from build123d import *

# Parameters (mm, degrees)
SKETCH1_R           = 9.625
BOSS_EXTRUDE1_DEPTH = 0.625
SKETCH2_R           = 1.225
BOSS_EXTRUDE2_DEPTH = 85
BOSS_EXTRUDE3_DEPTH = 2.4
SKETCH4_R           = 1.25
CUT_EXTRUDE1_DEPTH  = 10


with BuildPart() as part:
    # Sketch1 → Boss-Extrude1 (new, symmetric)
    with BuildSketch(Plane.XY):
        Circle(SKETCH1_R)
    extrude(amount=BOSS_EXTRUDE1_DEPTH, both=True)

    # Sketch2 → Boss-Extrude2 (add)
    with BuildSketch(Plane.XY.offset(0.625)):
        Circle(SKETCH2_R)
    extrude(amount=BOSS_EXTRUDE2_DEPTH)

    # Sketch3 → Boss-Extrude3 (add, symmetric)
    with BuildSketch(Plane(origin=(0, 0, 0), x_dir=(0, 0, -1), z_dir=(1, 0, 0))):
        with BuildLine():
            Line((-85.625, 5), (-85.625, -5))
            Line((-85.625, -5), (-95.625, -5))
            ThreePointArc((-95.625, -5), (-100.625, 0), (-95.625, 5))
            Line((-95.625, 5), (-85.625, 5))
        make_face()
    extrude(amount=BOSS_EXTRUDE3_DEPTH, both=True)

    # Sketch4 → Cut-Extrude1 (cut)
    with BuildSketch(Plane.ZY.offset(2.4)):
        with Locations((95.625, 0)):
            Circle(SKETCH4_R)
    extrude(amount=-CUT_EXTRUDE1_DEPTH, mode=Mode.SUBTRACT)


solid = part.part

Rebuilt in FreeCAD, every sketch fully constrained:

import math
import FreeCAD as App
import Part
import Sketcher
from FreeCAD import Vector

doc = App.newDocument("Part")
params = doc.addObject("Spreadsheet::Sheet", "Params")
for row, (alias, value) in enumerate([
    ("sketch1_diameter", "19.25 mm"),
    ("pad1_length", "1.25 mm"),
    ("sketch2_diameter", "2.45 mm"),
    ("pad2_length", "85 mm"),
    ("sketch3_radius", "5 mm"),
    ("pad3_length", "4.8 mm"),
    ("sketch4_diameter", "2.5 mm"),
    ("pocket1_length", "10 mm"),
], start=1):
    params.set(f"A{row}", alias)
    params.set(f"B{row}", "=" + value)
    params.setAlias(f"B{row}", alias)

body = doc.addObject("PartDesign::Body", "Body")

# Sketch on XY plane
sketch1 = doc.addObject("Sketcher::SketchObject", "Sketch")
body.addObject(sketch1)
sketch1.AttachmentSupport = (doc.XY_Plane, [""])
sketch1.MapMode = "FlatFace"
sketch1.addGeometry(Part.Circle(Vector(0, 0, 0), Vector(0, 0, 1), 10), False)
sketch1.addConstraint(Sketcher.Constraint("Coincident", 0, 3, -1, 1))
sketch1.addConstraint(Sketcher.Constraint("Diameter", 0, 19.25))
sketch1.setExpression("Constraints[1]", "Params.sketch1_diameter")
pad1 = doc.addObject("PartDesign::Pad", "Pad")
body.addObject(pad1)
pad1.Profile = sketch1
pad1.setExpression("Length", "Params.pad1_length")
pad1.Midplane = True

# Sketch on XY plane
sketch2 = doc.addObject("Sketcher::SketchObject", "Sketch001")
body.addObject(sketch2)
sketch2.AttachmentSupport = (doc.XY_Plane, [""])
sketch2.MapMode = "FlatFace"
sketch2.AttachmentOffset = App.Placement(Vector(0, 0, 0.625), App.Rotation())
sketch2.addGeometry(Part.Circle(Vector(0, 0, 0), Vector(0, 0, 1), 1.2), False)
sketch2.addConstraint(Sketcher.Constraint("Coincident", 0, 3, -1, 1))
sketch2.addConstraint(Sketcher.Constraint("Diameter", 0, 2.45))
sketch2.setExpression("Constraints[1]", "Params.sketch2_diameter")
pad2 = doc.addObject("PartDesign::Pad", "Pad001")
body.addObject(pad2)
pad2.Profile = sketch2
pad2.setExpression("Length", "Params.pad2_length")

# Sketch on YZ plane
sketch3 = doc.addObject("Sketcher::SketchObject", "Sketch002")
body.addObject(sketch3)
sketch3.AttachmentSupport = (doc.YZ_Plane, [""])
sketch3.MapMode = "FlatFace"
sketch3.addGeometry(Part.LineSegment(Vector(-5, 86, 0), Vector(5, 86, 0)), False)
sketch3.addGeometry(Part.LineSegment(Vector(5, 86, 0), Vector(5, 96, 0)), False)
sketch3.addGeometry(Part.ArcOfCircle(Part.Circle(Vector(0, 96, 0), Vector(0, 0, 1), 5), math.radians(0), math.radians(180)), False)
sketch3.addGeometry(Part.LineSegment(Vector(-5, 96, 0), Vector(-5, 86, 0)), False)
sketch3.addConstraint(Sketcher.Constraint("Coincident", 0, 2, 1, 1))
sketch3.addConstraint(Sketcher.Constraint("Tangent", 1, 2, 2, 1))
sketch3.addConstraint(Sketcher.Constraint("Tangent", 2, 2, 3, 1))
sketch3.addConstraint(Sketcher.Constraint("Coincident", 3, 2, 0, 1))
sketch3.addConstraint(Sketcher.Constraint("Horizontal", 0))
sketch3.addConstraint(Sketcher.Constraint("Vertical", 1))
sketch3.addConstraint(Sketcher.Constraint("Vertical", 3))
sketch3.addConstraint(Sketcher.Constraint("PointOnObject", 2, 3, -2))
sketch3.addConstraint(Sketcher.Constraint("Equal", 0, 1))
sketch3.addConstraint(Sketcher.Constraint("Radius", 2, 5.0))
sketch3.addConstraint(Sketcher.Constraint("DistanceY", -1, 1, 2, 3, 95.625))
sketch3.setExpression("Constraints[9]", "Params.sketch3_radius")
pad3 = doc.addObject("PartDesign::Pad", "Pad002")
body.addObject(pad3)
pad3.Profile = sketch3
pad3.setExpression("Length", "Params.pad3_length")
pad3.Midplane = True

# Sketch on YZ plane
sketch4 = doc.addObject("Sketcher::SketchObject", "Sketch003")
body.addObject(sketch4)
sketch4.AttachmentSupport = (doc.YZ_Plane, [""])
sketch4.MapMode = "FlatFace"
sketch4.AttachmentOffset = App.Placement(Vector(0, 0, -2.4), App.Rotation())
sketch4.addGeometry(Part.Circle(Vector(0, 95.6, 0), Vector(0, 0, 1), 1.2), False)
sketch4.addConstraint(Sketcher.Constraint("PointOnObject", 0, 3, -2))
sketch4.addConstraint(Sketcher.Constraint("Diameter", 0, 2.5))
sketch4.addConstraint(Sketcher.Constraint("DistanceY", -1, 1, 0, 3, 95.625))
sketch4.setExpression("Constraints[1]", "Params.sketch4_diameter")
pocket1 = doc.addObject("PartDesign::Pocket", "Pocket")
body.addObject(pocket1)
pocket1.Profile = sketch4
pocket1.setExpression("Length", "Params.pocket1_length")
pocket1.Reversed = True

doc.recompute()
